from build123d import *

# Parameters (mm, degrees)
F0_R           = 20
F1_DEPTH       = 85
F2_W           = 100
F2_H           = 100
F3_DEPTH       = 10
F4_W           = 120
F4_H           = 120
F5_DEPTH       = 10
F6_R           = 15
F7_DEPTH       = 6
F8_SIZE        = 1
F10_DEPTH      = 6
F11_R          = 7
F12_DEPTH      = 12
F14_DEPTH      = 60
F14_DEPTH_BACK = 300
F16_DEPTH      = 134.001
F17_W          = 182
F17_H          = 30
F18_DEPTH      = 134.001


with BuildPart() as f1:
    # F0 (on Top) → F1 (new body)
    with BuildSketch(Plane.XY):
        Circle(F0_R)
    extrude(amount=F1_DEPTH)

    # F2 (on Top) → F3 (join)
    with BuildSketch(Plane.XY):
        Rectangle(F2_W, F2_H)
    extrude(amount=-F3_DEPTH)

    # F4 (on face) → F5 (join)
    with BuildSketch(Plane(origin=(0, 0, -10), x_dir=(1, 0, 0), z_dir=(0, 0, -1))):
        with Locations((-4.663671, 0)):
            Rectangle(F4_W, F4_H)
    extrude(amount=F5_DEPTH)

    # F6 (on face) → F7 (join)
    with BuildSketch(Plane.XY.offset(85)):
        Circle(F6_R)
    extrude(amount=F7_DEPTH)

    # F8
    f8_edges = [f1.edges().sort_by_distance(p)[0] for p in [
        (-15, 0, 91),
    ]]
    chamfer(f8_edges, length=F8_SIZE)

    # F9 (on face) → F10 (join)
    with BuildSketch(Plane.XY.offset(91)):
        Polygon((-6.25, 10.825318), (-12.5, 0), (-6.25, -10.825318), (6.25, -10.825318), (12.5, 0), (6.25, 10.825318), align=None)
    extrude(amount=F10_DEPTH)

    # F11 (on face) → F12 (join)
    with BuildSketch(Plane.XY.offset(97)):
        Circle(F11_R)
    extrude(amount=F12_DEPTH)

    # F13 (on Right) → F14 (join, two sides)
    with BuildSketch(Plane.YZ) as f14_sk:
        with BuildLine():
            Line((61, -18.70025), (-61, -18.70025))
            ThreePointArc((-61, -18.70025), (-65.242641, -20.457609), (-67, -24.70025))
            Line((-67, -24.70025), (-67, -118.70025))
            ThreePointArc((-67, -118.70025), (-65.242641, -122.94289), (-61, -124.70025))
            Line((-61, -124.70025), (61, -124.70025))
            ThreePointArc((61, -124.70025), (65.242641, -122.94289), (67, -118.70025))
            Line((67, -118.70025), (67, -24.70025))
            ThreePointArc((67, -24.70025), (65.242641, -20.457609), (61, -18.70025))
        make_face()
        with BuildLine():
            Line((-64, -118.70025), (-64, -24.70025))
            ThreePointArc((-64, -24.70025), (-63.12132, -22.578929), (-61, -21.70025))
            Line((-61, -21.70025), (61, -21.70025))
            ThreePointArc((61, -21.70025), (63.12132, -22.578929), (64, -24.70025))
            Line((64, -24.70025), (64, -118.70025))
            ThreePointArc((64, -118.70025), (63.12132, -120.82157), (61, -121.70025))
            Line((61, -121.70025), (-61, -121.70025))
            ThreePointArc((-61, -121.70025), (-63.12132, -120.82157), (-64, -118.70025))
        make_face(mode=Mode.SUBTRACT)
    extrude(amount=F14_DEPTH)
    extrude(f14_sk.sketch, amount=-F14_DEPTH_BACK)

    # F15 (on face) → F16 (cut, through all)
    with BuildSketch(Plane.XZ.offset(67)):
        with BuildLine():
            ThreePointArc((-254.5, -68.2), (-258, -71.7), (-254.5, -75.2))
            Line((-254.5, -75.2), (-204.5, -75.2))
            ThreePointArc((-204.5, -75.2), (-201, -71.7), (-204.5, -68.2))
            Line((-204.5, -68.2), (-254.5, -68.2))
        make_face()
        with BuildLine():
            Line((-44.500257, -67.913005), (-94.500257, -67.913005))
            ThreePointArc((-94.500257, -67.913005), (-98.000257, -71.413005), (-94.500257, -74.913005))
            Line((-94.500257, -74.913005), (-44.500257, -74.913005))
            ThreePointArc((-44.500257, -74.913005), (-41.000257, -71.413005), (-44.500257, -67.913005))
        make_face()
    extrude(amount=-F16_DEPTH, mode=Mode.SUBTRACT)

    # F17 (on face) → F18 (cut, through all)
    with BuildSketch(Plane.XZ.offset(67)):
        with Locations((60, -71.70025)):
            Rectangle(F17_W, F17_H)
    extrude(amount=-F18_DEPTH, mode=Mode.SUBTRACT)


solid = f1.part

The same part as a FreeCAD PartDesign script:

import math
import FreeCAD as App
import Part
import Sketcher
Q = App.Units.Quantity


def edges_at(feature, points):
    """Names of the edges that pass closest to the given points."""
    edges = feature.Shape.Edges
    near = lambda p: min(range(len(edges)), key=lambda i: edges[i].distToShape(Part.Vertex(*p))[0])
    return sorted({f"Edge{near(p) + 1}" for p in points})


def add_polygon(sketch, points):
    """Adds a closed chain of lines whose ends are joined by coincident constraints."""
    first, n = sketch.GeometryCount, len(points)
    for a, b in zip(points, points[1:] + points[:1]):
        sketch.addGeometry(Part.LineSegment(App.Vector(*a, 0), App.Vector(*b, 0)), False)
    for i in range(n):
        sketch.addConstraint(Sketcher.Constraint("Coincident", first + i, 2, first + (i + 1) % n, 1))

doc = App.newDocument("Part")
body = doc.addObject("PartDesign::Body", "Body")

# Sketch on XY plane
sketch1 = body.newObject("Sketcher::SketchObject", "Sketch")
sketch1.AttachmentSupport = (doc.getObject("XY_Plane"), [""])
sketch1.MapMode = "FlatFace"
sketch1.addGeometry(Part.Circle(App.Vector(0, 0, 0), App.Vector(0, 0, 1), 20), False)
sketch1.addConstraint(Sketcher.Constraint("Coincident", 0, 3, -1, 1))
sketch1.addConstraint(Sketcher.Constraint("Diameter", 0, 40.0))
pad1 = body.newObject("PartDesign::Pad", "Pad")
pad1.Profile = sketch1
pad1.Length = 85

# Sketch on XY plane
sketch2 = body.newObject("Sketcher::SketchObject", "Sketch001")
sketch2.AttachmentSupport = (doc.getObject("XY_Plane"), [""])
sketch2.MapMode = "FlatFace"
add_polygon(sketch2, [(-50, 50), (-50, -50), (50, -50), (50, 50)])  # lines 0-3
sketch2.addConstraint(Sketcher.Constraint("Vertical", 0))
sketch2.addConstraint(Sketcher.Constraint("Horizontal", 1))
sketch2.addConstraint(Sketcher.Constraint("Vertical", 2))
sketch2.addConstraint(Sketcher.Constraint("Horizontal", 3))
sketch2.addConstraint(Sketcher.Constraint("Symmetric", 0, 2, 2, 2, -1, 1))
sketch2.addConstraint(Sketcher.Constraint("Equal", 3, 0))
sketch2.addConstraint(Sketcher.Constraint("DistanceX", 1, 1, 1, 2, 100.0))
pad2 = body.newObject("PartDesign::Pad", "Pad001")
pad2.Profile = sketch2
pad2.Length = 10
pad2.Reversed = True

# Sketch on XY plane
sketch3 = body.newObject("Sketcher::SketchObject", "Sketch002")
sketch3.AttachmentSupport = (doc.getObject("XY_Plane"), [""])
sketch3.MapMode = "FlatFace"
sketch3.AttachmentOffset = App.Placement(App.Vector(0, 0, -10), App.Rotation())
add_polygon(sketch3, [(-64.663671, -60), (-64.663671, 60), (55.336329, 60), (55.336329, -60)])  # lines 0-3
sketch3.addConstraint(Sketcher.Constraint("Vertical", 0))
sketch3.addConstraint(Sketcher.Constraint("Horizontal", 1))
sketch3.addConstraint(Sketcher.Constraint("Vertical", 2))
sketch3.addConstraint(Sketcher.Constraint("Horizontal", 3))
sketch3.addConstraint(Sketcher.Constraint("Equal", 3, 0))
sketch3.addConstraint(Sketcher.Constraint("DistanceX", 1, 1, 1, 2, 120.0))
sketch3.addConstraint(Sketcher.Constraint("DistanceY", -1, 1, 0, 2, 60.0))
sketch3.addConstraint(Sketcher.Constraint("DistanceX", 0, 2, -1, 1, 64.663671))
pad3 = body.newObject("PartDesign::Pad", "Pad002")
pad3.Profile = sketch3
pad3.Length = 10
pad3.Reversed = True

# Sketch on XY plane
sketch4 = body.newObject("Sketcher::SketchObject", "Sketch003")
sketch4.AttachmentSupport = (doc.getObject("XY_Plane"), [""])
sketch4.MapMode = "FlatFace"
sketch4.AttachmentOffset = App.Placement(App.Vector(0, 0, 85), App.Rotation())
sketch4.addGeometry(Part.Circle(App.Vector(0, 0, 0), App.Vector(0, 0, 1), 15), False)
sketch4.addConstraint(Sketcher.Constraint("Coincident", 0, 3, -1, 1))
sketch4.addConstraint(Sketcher.Constraint("Diameter", 0, 30.0))
pad4 = body.newObject("PartDesign::Pad", "Pad003")
pad4.Profile = sketch4
pad4.Length = 6
doc.recompute()

chamfer = body.newObject("PartDesign::Chamfer", "Chamfer")
chamfer.Base = (pad4, edges_at(pad4, [(-15, 0, 91)]))
chamfer.Size = 1

# Sketch on XY plane
sketch5 = body.newObject("Sketcher::SketchObject", "Sketch004")
sketch5.AttachmentSupport = (doc.getObject("XY_Plane"), [""])
sketch5.MapMode = "FlatFace"
sketch5.AttachmentOffset = App.Placement(App.Vector(0, 0, 91), App.Rotation())
add_polygon(sketch5, [(-6.25, 10.825318), (-12.5, 0), (-6.25, -10.825318), (6.25, -10.825318), (12.5, 0), (6.25, 10.825318)])  # lines 0-5
sketch5.addConstraint(Sketcher.Constraint("Horizontal", 2))
sketch5.addConstraint(Sketcher.Constraint("Horizontal", 5))
sketch5.addConstraint(Sketcher.Constraint("Symmetric", 0, 2, 3, 2, -1, 1))
sketch5.addConstraint(Sketcher.Constraint("Symmetric", 1, 2, 4, 2, -1, 1))
sketch5.addConstraint(Sketcher.Constraint("PointOnObject", 0, 2, -1))
sketch5.addConstraint(Sketcher.Constraint("Parallel", 0, 3))
sketch5.addConstraint(Sketcher.Constraint("Vertical", 2, 2, 4, 2))
sketch5.addConstraint(Sketcher.Constraint("Angle", 0, Q("-119.999999 deg")))
sketch5.addConstraint(Sketcher.Constraint("DistanceX", 2, 1, 2, 2, 12.5))
sketch5.addConstraint(Sketcher.Constraint("DistanceX", 0, 2, 3, 2, 25.0))
pad5 = body.newObject("PartDesign::Pad", "Pad004")
pad5.Profile = sketch5
pad5.Length = 6

# Sketch on XY plane
sketch6 = body.newObject("Sketcher::SketchObject", "Sketch005")
sketch6.AttachmentSupport = (doc.getObject("XY_Plane"), [""])
sketch6.MapMode = "FlatFace"
sketch6.AttachmentOffset = App.Placement(App.Vector(0, 0, 97), App.Rotation())
sketch6.addGeometry(Part.Circle(App.Vector(0, 0, 0), App.Vector(0, 0, 1), 7), False)
sketch6.addConstraint(Sketcher.Constraint("Coincident", 0, 3, -1, 1))
sketch6.addConstraint(Sketcher.Constraint("Diameter", 0, 14.0))
pad6 = body.newObject("PartDesign::Pad", "Pad005")
pad6.Profile = sketch6
pad6.Length = 12

# Sketch on YZ plane
sketch7 = body.newObject("Sketcher::SketchObject", "Sketch006")
sketch7.AttachmentSupport = (doc.getObject("YZ_Plane"), [""])
sketch7.MapMode = "FlatFace"
sketch7.addGeometry(Part.LineSegment(App.Vector(61, -18.70025, 0), App.Vector(-61, -18.70025, 0)), False)
sketch7.addGeometry(Part.ArcOfCircle(Part.Circle(App.Vector(-61.000001, -24.700249, 0), App.Vector(0, 0, 1), 5.999999), math.radians(89.99999), math.radians(180.00001)), False)
sketch7.addGeometry(Part.LineSegment(App.Vector(-67, -24.70025, 0), App.Vector(-67, -118.70025, 0)), False)
sketch7.addGeometry(Part.ArcOfCircle(Part.Circle(App.Vector(-60.999999, -118.700249, 0), App.Vector(0, 0, 1), 6.000001), math.radians(-179.999994), math.radians(-90.000006)), False)
sketch7.addGeometry(Part.LineSegment(App.Vector(-61, -124.70025, 0), App.Vector(61, -124.70025, 0)), False)
sketch7.addGeometry(Part.ArcOfCircle(Part.Circle(App.Vector(60.999999, -118.700249, 0), App.Vector(0, 0, 1), 6.000001), math.radians(-89.999994), math.radians(-0.000006)), False)
sketch7.addGeometry(Part.LineSegment(App.Vector(67, -118.70025, 0), App.Vector(67, -24.70025, 0)), False)
sketch7.addGeometry(Part.ArcOfCircle(Part.Circle(App.Vector(61.000001, -24.700249, 0), App.Vector(0, 0, 1), 5.999999), math.radians(-0.00001), math.radians(90.00001)), False)
sketch7.addGeometry(Part.ArcOfCircle(Part.Circle(App.Vector(-60.999999, -118.700249, 0), App.Vector(0, 0, 1), 3.000001), math.radians(-179.999978), math.radians(-90.000022)), False)
sketch7.addGeometry(Part.LineSegment(App.Vector(-64, -118.70025, 0), App.Vector(-64, -24.70025, 0)), False)
sketch7.addGeometry(Part.ArcOfCircle(Part.Circle(App.Vector(-61.000001, -24.700249, 0), App.Vector(0, 0, 1), 2.999999), math.radians(89.99999), math.radians(180.00001)), False)
sketch7.addGeometry(Part.LineSegment(App.Vector(-61, -21.70025, 0), App.Vector(61, -21.70025, 0)), False)
sketch7.addGeometry(Part.ArcOfCircle(Part.Circle(App.Vector(61.000001, -24.700249, 0), App.Vector(0, 0, 1), 2.999999), math.radians(-0.00001), math.radians(90.00001)), False)
sketch7.addGeometry(Part.LineSegment(App.Vector(64, -24.70025, 0), App.Vector(64, -118.70025, 0)), False)
sketch7.addGeometry(Part.ArcOfCircle(Part.Circle(App.Vector(60.999999, -118.700249, 0), App.Vector(0, 0, 1), 3.000001), math.radians(-89.999978), math.radians(-0.000022)), False)
sketch7.addGeometry(Part.LineSegment(App.Vector(61, -121.70025, 0), App.Vector(-61, -121.70025, 0)), False)
sketch7.addConstraint(Sketcher.Constraint("Tangent", 0, 2, 1, 1))
sketch7.addConstraint(Sketcher.Constraint("Tangent", 1, 2, 2, 1))
sketch7.addConstraint(Sketcher.Constraint("Tangent", 2, 2, 3, 1))
sketch7.addConstraint(Sketcher.Constraint("Tangent", 3, 2, 4, 1))
sketch7.addConstraint(Sketcher.Constraint("Tangent", 4, 2, 5, 1))
sketch7.addConstraint(Sketcher.Constraint("Tangent", 5, 2, 6, 1))
sketch7.addConstraint(Sketcher.Constraint("Tangent", 6, 2, 7, 1))
sketch7.addConstraint(Sketcher.Constraint("Tangent", 7, 2, 0, 1))
sketch7.addConstraint(Sketcher.Constraint("Tangent", 8, 1, 9, 1))
sketch7.addConstraint(Sketcher.Constraint("Tangent", 9, 2, 10, 2))
sketch7.addConstraint(Sketcher.Constraint("Tangent", 10, 1, 11, 1))
sketch7.addConstraint(Sketcher.Constraint("Tangent", 11, 2, 12, 2))
sketch7.addConstraint(Sketcher.Constraint("Tangent", 12, 1, 13, 1))
sketch7.addConstraint(Sketcher.Constraint("Tangent", 13, 2, 14, 2))
sketch7.addConstraint(Sketcher.Constraint("Tangent", 14, 1, 15, 1))
sketch7.addConstraint(Sketcher.Constraint("Tangent", 15, 2, 8, 2))
sketch7.addConstraint(Sketcher.Constraint("Horizontal", 0))
sketch7.addConstraint(Sketcher.Constraint("Vertical", 2))
sketch7.addConstraint(Sketcher.Constraint("Horizontal", 4))
sketch7.addConstraint(Sketcher.Constraint("Vertical", 6))
sketch7.addConstraint(Sketcher.Constraint("Vertical", 9))
sketch7.addConstraint(Sketcher.Constraint("Horizontal", 11))
sketch7.addConstraint(Sketcher.Constraint("Vertical", 13))
sketch7.addConstraint(Sketcher.Constraint("Horizontal", 15))
sketch7.addConstraint(Sketcher.Constraint("Coincident", 8, 3, 3, 3))
sketch7.addConstraint(Sketcher.Constraint("Coincident", 10, 3, 1, 3))
sketch7.addConstraint(Sketcher.Constraint("Coincident", 12, 3, 7, 3))
sketch7.addConstraint(Sketcher.Constraint("Equal", 1, 3))
sketch7.addConstraint(Sketcher.Constraint("Equal", 3, 5))
sketch7.addConstraint(Sketcher.Constraint("Equal", 5, 7))
sketch7.addConstraint(Sketcher.Constraint("Equal", 12, 14))
sketch7.addConstraint(Sketcher.Constraint("Radius", 1, 5.999999))
sketch7.addConstraint(Sketcher.Constraint("Radius", 8, 3.000001))
sketch7.addConstraint(Sketcher.Constraint("DistanceX", 0, 2, 0, 1, 122.0))
sketch7.addConstraint(Sketcher.Constraint("DistanceY", 2, 2, 2, 1, 94.0))
sketch7.addConstraint(Sketcher.Constraint("DistanceX", 1, 3, -1, 1, 61.000001))
sketch7.addConstraint(Sketcher.Constraint("DistanceY", 1, 3, -1, 1, 24.700249))
pad7 = body.newObject("PartDesign::Pad", "Pad006")
pad7.Profile = sketch7
pad7.Type = "TwoLengths"
pad7.Length = 60
pad7.Length2 = 300

# Sketch on XZ plane
sketch8 = body.newObject("Sketcher::SketchObject", "Sketch007")
sketch8.AttachmentSupport = (doc.getObject("XZ_Plane"), [""])
sketch8.MapMode = "FlatFace"
sketch8.AttachmentOffset = App.Placement(App.Vector(0, 0, 67), App.Rotation())
sketch8.addGeometry(Part.ArcOfCircle(Part.Circle(App.Vector(-254.5, -71.7, 0), App.Vector(0, 0, 1), 3.5), math.radians(90), math.radians(270)), False)
sketch8.addGeometry(Part.LineSegment(App.Vector(-254.5, -75.2, 0), App.Vector(-204.5, -75.2, 0)), False)
sketch8.addGeometry(Part.ArcOfCircle(Part.Circle(App.Vector(-204.5, -71.7, 0), App.Vector(0, 0, 1), 3.5), math.radians(-90), math.radians(90)), False)
sketch8.addGeometry(Part.LineSegment(App.Vector(-204.5, -68.2, 0), App.Vector(-254.5, -68.2, 0)), False)
sketch8.addGeometry(Part.LineSegment(App.Vector(-44.500257, -67.913005, 0), App.Vector(-94.500257, -67.913005, 0)), False)
sketch8.addGeometry(Part.ArcOfCircle(Part.Circle(App.Vector(-94.500257, -71.413005, 0), App.Vector(0, 0, 1), 3.5), math.radians(90), math.radians(270)), False)
sketch8.addGeometry(Part.LineSegment(App.Vector(-94.500257, -74.913005, 0), App.Vector(-44.500257, -74.913005, 0)), False)
sketch8.addGeometry(Part.ArcOfCircle(Part.Circle(App.Vector(-44.500257, -71.413005, 0), App.Vector(0, 0, 1), 3.5), math.radians(-90), math.radians(90)), False)
sketch8.addConstraint(Sketcher.Constraint("Tangent", 0, 2, 1, 1))
sketch8.addConstraint(Sketcher.Constraint("Tangent", 1, 2, 2, 1))
sketch8.addConstraint(Sketcher.Constraint("Tangent", 2, 2, 3, 1))
sketch8.addConstraint(Sketcher.Constraint("Tangent", 3, 2, 0, 1))
sketch8.addConstraint(Sketcher.Constraint("Tangent", 4, 2, 5, 1))
sketch8.addConstraint(Sketcher.Constraint("Tangent", 5, 2, 6, 1))
sketch8.addConstraint(Sketcher.Constraint("Tangent", 6, 2, 7, 1))
sketch8.addConstraint(Sketcher.Constraint("Tangent", 7, 2, 4, 1))
sketch8.addConstraint(Sketcher.Constraint("Horizontal", 1))
sketch8.addConstraint(Sketcher.Constraint("Horizontal", 3))
sketch8.addConstraint(Sketcher.Constraint("Horizontal", 4))
sketch8.addConstraint(Sketcher.Constraint("Horizontal", 6))
sketch8.addConstraint(Sketcher.Constraint("Equal", 2, 5))
sketch8.addConstraint(Sketcher.Constraint("Equal", 3, 4))
sketch8.addConstraint(Sketcher.Constraint("Radius", 0, 3.5))
sketch8.addConstraint(Sketcher.Constraint("DistanceX", 1, 1, 1, 2, 50.0))
sketch8.addConstraint(Sketcher.Constraint("DistanceX", 0, 3, -1, 1, 254.5))
sketch8.addConstraint(Sketcher.Constraint("DistanceY", 0, 3, -1, 1, 71.7))
sketch8.addConstraint(Sketcher.Constraint("DistanceX", 5, 3, -1, 1, 94.500257))
sketch8.addConstraint(Sketcher.Constraint("DistanceY", 5, 3, -1, 1, 71.413005))
pocket1 = body.newObject("PartDesign::Pocket", "Pocket")
pocket1.Profile = sketch8
pocket1.Type = "ThroughAll"

# Sketch on XZ plane
sketch9 = body.newObject("Sketcher::SketchObject", "Sketch008")
sketch9.AttachmentSupport = (doc.getObject("XZ_Plane"), [""])
sketch9.MapMode = "FlatFace"
sketch9.AttachmentOffset = App.Placement(App.Vector(0, 0, 67), App.Rotation())
add_polygon(sketch9, [(-31, -56.70025), (-31, -86.70025), (151, -86.70025), (151, -56.70025)])  # lines 0-3
sketch9.addConstraint(Sketcher.Constraint("Vertical", 0))
sketch9.addConstraint(Sketcher.Constraint("Horizontal", 1))
sketch9.addConstraint(Sketcher.Constraint("Vertical", 2))
sketch9.addConstraint(Sketcher.Constraint("Horizontal", 3))
sketch9.addConstraint(Sketcher.Constraint("DistanceX", 1, 1, 1, 2, 182.0))
sketch9.addConstraint(Sketcher.Constraint("DistanceY", 0, 2, 0, 1, 30.0))
sketch9.addConstraint(Sketcher.Constraint("DistanceX", 0, 2, -1, 1, 31.0))
sketch9.addConstraint(Sketcher.Constraint("DistanceY", 0, 2, -1, 1, 86.70025))
pocket2 = body.newObject("PartDesign::Pocket", "Pocket001")
pocket2.Profile = sketch9
pocket2.Type = "ThroughAll"

doc.recompute()
